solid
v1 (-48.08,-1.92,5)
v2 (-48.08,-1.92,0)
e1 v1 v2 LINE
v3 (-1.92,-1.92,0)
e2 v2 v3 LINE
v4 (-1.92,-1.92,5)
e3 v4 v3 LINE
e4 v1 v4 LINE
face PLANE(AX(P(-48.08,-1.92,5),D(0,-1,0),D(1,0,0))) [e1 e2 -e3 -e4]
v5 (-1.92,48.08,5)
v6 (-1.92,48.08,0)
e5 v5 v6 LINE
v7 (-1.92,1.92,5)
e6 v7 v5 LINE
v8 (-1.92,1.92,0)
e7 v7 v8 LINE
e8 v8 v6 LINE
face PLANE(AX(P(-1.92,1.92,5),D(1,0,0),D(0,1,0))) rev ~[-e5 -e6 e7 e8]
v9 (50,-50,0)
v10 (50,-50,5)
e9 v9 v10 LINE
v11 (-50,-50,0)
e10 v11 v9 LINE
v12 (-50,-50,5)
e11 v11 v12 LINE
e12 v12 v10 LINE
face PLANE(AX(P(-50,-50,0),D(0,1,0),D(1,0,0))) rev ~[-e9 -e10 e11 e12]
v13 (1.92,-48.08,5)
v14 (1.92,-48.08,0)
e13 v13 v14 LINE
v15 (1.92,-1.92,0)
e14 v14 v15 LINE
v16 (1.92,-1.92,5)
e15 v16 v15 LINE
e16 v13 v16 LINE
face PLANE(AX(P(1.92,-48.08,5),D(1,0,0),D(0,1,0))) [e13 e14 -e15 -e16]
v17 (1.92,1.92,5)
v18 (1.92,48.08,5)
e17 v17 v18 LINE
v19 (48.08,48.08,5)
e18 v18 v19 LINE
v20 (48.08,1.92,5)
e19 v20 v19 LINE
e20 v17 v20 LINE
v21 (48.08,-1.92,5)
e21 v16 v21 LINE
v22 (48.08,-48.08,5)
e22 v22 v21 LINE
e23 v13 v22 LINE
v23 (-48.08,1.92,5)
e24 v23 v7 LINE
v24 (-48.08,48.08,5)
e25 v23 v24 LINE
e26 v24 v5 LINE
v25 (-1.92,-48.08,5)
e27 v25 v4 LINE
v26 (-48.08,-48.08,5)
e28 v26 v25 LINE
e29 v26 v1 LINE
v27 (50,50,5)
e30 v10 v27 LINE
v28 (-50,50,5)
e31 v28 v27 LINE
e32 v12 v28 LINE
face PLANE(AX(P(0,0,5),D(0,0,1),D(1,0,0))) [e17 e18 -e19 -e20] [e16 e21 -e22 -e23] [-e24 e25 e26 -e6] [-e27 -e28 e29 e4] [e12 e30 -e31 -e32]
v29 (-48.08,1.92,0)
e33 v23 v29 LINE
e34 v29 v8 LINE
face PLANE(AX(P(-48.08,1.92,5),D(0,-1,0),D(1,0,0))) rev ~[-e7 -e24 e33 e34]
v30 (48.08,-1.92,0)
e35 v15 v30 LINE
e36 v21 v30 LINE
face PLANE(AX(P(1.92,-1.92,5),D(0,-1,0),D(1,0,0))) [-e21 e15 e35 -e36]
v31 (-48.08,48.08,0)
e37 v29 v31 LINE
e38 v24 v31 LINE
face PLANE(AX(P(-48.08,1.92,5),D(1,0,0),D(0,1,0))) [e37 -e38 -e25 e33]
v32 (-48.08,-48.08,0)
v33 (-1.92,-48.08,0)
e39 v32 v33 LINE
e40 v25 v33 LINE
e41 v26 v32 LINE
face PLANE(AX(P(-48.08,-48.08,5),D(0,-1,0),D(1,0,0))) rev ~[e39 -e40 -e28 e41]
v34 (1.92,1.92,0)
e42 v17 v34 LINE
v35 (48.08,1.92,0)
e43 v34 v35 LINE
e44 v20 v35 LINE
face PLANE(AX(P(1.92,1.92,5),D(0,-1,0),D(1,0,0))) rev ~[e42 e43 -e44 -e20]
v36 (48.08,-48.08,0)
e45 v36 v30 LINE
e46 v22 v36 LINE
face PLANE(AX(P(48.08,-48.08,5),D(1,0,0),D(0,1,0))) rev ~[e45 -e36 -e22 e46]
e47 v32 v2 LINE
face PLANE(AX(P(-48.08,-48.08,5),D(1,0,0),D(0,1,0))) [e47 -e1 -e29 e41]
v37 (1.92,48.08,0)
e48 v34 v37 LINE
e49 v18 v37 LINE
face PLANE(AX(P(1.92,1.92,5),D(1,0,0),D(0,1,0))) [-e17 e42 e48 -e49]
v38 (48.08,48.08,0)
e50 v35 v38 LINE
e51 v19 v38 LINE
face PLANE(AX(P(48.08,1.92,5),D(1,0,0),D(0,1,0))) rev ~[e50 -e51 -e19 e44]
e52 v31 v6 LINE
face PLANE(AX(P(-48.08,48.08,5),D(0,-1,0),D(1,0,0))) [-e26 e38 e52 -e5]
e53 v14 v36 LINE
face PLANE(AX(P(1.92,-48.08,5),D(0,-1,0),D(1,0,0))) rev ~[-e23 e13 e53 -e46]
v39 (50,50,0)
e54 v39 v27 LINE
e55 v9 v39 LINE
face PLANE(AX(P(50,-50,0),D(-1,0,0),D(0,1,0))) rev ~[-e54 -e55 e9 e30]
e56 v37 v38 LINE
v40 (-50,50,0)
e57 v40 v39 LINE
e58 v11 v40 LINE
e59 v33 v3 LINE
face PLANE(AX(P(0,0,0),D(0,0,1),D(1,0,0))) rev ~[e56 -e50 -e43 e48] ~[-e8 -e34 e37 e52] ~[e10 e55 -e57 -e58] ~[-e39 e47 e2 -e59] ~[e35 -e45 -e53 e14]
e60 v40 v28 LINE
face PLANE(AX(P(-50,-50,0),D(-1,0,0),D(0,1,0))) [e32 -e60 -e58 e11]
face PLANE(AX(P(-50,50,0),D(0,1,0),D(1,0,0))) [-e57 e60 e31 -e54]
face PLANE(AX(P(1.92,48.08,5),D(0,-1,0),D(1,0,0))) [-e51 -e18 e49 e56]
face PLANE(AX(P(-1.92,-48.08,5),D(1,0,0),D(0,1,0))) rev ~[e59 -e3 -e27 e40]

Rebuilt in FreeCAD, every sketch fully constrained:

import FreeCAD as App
import Part
import Sketcher
from FreeCAD import Vector
Q = App.Units.Quantity

doc = App.newDocument("Part")
params = doc.addObject("Spreadsheet::Sheet", "Params")
for row, (alias, value) in enumerate([
    ("sketch1_width", "100 mm"),
    ("pad1_length", "5 mm"),
    ("sketch2_width", "46.16 mm"),
], start=1):
    params.set(f"A{row}", alias)
    params.set(f"B{row}", "=" + value)
    params.setAlias(f"B{row}", alias)

body = doc.addObject("PartDesign::Body", "Body")

# Sketch on XY plane
sketch1 = body.newObject("Sketcher::SketchObject", "Sketch")
sketch1.AttachmentSupport = (doc.getObject("XY_Plane"), [""])
sketch1.MapMode = "FlatFace"
sketch1.addGeometry(Part.LineSegment(Vector(-50, 50, 0), Vector(-50, -50, 0)), False)
sketch1.addGeometry(Part.LineSegment(Vector(-50, -50, 0), Vector(50, -50, 0)), False)
sketch1.addGeometry(Part.LineSegment(Vector(50, -50, 0), Vector(50, 50, 0)), False)
sketch1.addGeometry(Part.LineSegment(Vector(50, 50, 0), Vector(-50, 50, 0)), False)
sketch1.addConstraint(Sketcher.Constraint("Coincident", 0, 2, 1, 1))
sketch1.addConstraint(Sketcher.Constraint("Coincident", 1, 2, 2, 1))
sketch1.addConstraint(Sketcher.Constraint("Coincident", 2, 2, 3, 1))
sketch1.addConstraint(Sketcher.Constraint("Coincident", 3, 2, 0, 1))
sketch1.addConstraint(Sketcher.Constraint("Vertical", 0))
sketch1.addConstraint(Sketcher.Constraint("Horizontal", 1))
sketch1.addConstraint(Sketcher.Constraint("Vertical", 2))
sketch1.addConstraint(Sketcher.Constraint("Horizontal", 3))
sketch1.addConstraint(Sketcher.Constraint("Symmetric", 0, 2, 2, 2, -1, 1))
sketch1.addConstraint(Sketcher.Constraint("Equal", 3, 0))
sketch1.addConstraint(Sketcher.Constraint("DistanceX", 1, 1, 1, 2, Q("100 mm")))
sketch1.setExpression("Constraints[10]", "Params.sketch1_width")
pad1 = body.newObject("PartDesign::Pad", "Pad")
pad1.Profile = sketch1
pad1.setExpression("Length", "Params.pad1_length")

# Sketch on XY plane
sketch2 = body.newObject("Sketcher::SketchObject", "Sketch001")
sketch2.AttachmentSupport = (doc.getObject("XY_Plane"), [""])
sketch2.MapMode = "FlatFace"
sketch2.AttachmentOffset = App.Placement(Vector(0, 0, 5), App.Rotation())
sketch2.addGeometry(Part.LineSegment(Vector(-48, 48, 0), Vector(-48, 2, 0)), False)
sketch2.addGeometry(Part.LineSegment(Vector(-48, 2, 0), Vector(-2, 2, 0)), False)
sketch2.addGeometry(Part.LineSegment(Vector(-2, 2, 0), Vector(-2, 48, 0)), False)
sketch2.addGeometry(Part.LineSegment(Vector(-2, 48, 0), Vector(-48, 48, 0)), False)
sketch2.addGeometry(Part.LineSegment(Vector(2, 48, 0), Vector(2, 2, 0)), False)
sketch2.addGeometry(Part.LineSegment(Vector(2, 2, 0), Vector(48, 2, 0)), False)
sketch2.addGeometry(Part.LineSegment(Vector(48, 2, 0), Vector(48, 48, 0)), False)
sketch2.addGeometry(Part.LineSegment(Vector(48, 48, 0), Vector(2, 48, 0)), False)
sketch2.addGeometry(Part.LineSegment(Vector(2, -2, 0), Vector(2, -48, 0)), False)
sketch2.addGeometry(Part.LineSegment(Vector(2, -48, 0), Vector(48, -48, 0)), False)
sketch2.addGeometry(Part.LineSegment(Vector(48, -48, 0), Vector(48, -2, 0)), False)
sketch2.addGeometry(Part.LineSegment(Vector(48, -2, 0), Vector(2, -2, 0)), False)
sketch2.addGeometry(Part.LineSegment(Vector(-48, -2, 0), Vector(-48, -48, 0)), False)
sketch2.addGeometry(Part.LineSegment(Vector(-48, -48, 0), Vector(-2, -48, 0)), False)
sketch2.addGeometry(Part.LineSegment(Vector(-2, -48, 0), Vector(-2, -2, 0)), False)
sketch2.addGeometry(Part.LineSegment(Vector(-2, -2, 0), Vector(-48, -2, 0)), False)
sketch2.addConstraint(Sketcher.Constraint("Coincident", 0, 2, 1, 1))
sketch2.addConstraint(Sketcher.Constraint("Coincident", 1, 2, 2, 1))
sketch2.addConstraint(Sketcher.Constraint("Coincident", 2, 2, 3, 1))
sketch2.addConstraint(Sketcher.Constraint("Coincident", 3, 2, 0, 1))
sketch2.addConstraint(Sketcher.Constraint("Coincident", 4, 2, 5, 1))
sketch2.addConstraint(Sketcher.Constraint("Coincident", 5, 2, 6, 1))
sketch2.addConstraint(Sketcher.Constraint("Coincident", 6, 2, 7, 1))
sketch2.addConstraint(Sketcher.Constraint("Coincident", 7, 2, 4, 1))
sketch2.addConstraint(Sketcher.Constraint("Coincident", 8, 2, 9, 1))
sketch2.addConstraint(Sketcher.Constraint("Coincident", 9, 2, 10, 1))
sketch2.addConstraint(Sketcher.Constraint("Coincident", 10, 2, 11, 1))
sketch2.addConstraint(Sketcher.Constraint("Coincident", 11, 2, 8, 1))
sketch2.addConstraint(Sketcher.Constraint("Coincident", 12, 2, 13, 1))
sketch2.addConstraint(Sketcher.Constraint("Coincident", 13, 2, 14, 1))
sketch2.addConstraint(Sketcher.Constraint("Coincident", 14, 2, 15, 1))
sketch2.addConstraint(Sketcher.Constraint("Coincident", 15, 2, 12, 1))
sketch2.addConstraint(Sketcher.Constraint("Vertical", 0))
sketch2.addConstraint(Sketcher.Constraint("Horizontal", 1))
sketch2.addConstraint(Sketcher.Constraint("Vertical", 2))
sketch2.addConstraint(Sketcher.Constraint("Horizontal", 3))
sketch2.addConstraint(Sketcher.Constraint("Vertical", 4))
sketch2.addConstraint(Sketcher.Constraint("Horizontal", 5))
sketch2.addConstraint(Sketcher.Constraint("Vertical", 6))
sketch2.addConstraint(Sketcher.Constraint("Horizontal", 7))
sketch2.addConstraint(Sketcher.Constraint("Vertical", 8))
sketch2.addConstraint(Sketcher.Constraint("Horizontal", 9))
sketch2.addConstraint(Sketcher.Constraint("Vertical", 10))
sketch2.addConstraint(Sketcher.Constraint("Horizontal", 11))
sketch2.addConstraint(Sketcher.Constraint("Vertical", 12))
sketch2.addConstraint(Sketcher.Constraint("Horizontal", 13))
sketch2.addConstraint(Sketcher.Constraint("Vertical", 14))
sketch2.addConstraint(Sketcher.Constraint("Horizontal", 15))
sketch2.addConstraint(Sketcher.Constraint("Symmetric", 2, 2, 8, 2, -1, 1))
sketch2.addConstraint(Sketcher.Constraint("Symmetric", 0, 2, 10, 2, -1, 1))
sketch2.addConstraint(Sketcher.Constraint("Symmetric", 6, 2, 12, 2, -1, 1))
sketch2.addConstraint(Sketcher.Constraint("Symmetric", 4, 2, 14, 2, -1, 1))
sketch2.addConstraint(Sketcher.Constraint("Symmetric", 1, 2, 4, 2, -2))
sketch2.addConstraint(Sketcher.Constraint("Symmetric", 3, 2, 6, 2, -2))
sketch2.addConstraint(Sketcher.Constraint("Equal", 15, 0))
sketch2.addConstraint(Sketcher.Constraint("DistanceX", 0, 2, 4, 2, Q("50 mm")))
sketch2.addConstraint(Sketcher.Constraint("DistanceY", 8, 2, 4, 2, Q("50 mm")))
sketch2.addConstraint(Sketcher.Constraint("DistanceX", 1, 1, 1, 2, Q("46.16 mm")))
sketch2.setExpression("Constraints[41]", "Params.sketch2_width")
pocket1 = body.newObject("PartDesign::Pocket", "Pocket")
pocket1.Profile = sketch2
pocket1.Type = "ThroughAll"

doc.recompute()
